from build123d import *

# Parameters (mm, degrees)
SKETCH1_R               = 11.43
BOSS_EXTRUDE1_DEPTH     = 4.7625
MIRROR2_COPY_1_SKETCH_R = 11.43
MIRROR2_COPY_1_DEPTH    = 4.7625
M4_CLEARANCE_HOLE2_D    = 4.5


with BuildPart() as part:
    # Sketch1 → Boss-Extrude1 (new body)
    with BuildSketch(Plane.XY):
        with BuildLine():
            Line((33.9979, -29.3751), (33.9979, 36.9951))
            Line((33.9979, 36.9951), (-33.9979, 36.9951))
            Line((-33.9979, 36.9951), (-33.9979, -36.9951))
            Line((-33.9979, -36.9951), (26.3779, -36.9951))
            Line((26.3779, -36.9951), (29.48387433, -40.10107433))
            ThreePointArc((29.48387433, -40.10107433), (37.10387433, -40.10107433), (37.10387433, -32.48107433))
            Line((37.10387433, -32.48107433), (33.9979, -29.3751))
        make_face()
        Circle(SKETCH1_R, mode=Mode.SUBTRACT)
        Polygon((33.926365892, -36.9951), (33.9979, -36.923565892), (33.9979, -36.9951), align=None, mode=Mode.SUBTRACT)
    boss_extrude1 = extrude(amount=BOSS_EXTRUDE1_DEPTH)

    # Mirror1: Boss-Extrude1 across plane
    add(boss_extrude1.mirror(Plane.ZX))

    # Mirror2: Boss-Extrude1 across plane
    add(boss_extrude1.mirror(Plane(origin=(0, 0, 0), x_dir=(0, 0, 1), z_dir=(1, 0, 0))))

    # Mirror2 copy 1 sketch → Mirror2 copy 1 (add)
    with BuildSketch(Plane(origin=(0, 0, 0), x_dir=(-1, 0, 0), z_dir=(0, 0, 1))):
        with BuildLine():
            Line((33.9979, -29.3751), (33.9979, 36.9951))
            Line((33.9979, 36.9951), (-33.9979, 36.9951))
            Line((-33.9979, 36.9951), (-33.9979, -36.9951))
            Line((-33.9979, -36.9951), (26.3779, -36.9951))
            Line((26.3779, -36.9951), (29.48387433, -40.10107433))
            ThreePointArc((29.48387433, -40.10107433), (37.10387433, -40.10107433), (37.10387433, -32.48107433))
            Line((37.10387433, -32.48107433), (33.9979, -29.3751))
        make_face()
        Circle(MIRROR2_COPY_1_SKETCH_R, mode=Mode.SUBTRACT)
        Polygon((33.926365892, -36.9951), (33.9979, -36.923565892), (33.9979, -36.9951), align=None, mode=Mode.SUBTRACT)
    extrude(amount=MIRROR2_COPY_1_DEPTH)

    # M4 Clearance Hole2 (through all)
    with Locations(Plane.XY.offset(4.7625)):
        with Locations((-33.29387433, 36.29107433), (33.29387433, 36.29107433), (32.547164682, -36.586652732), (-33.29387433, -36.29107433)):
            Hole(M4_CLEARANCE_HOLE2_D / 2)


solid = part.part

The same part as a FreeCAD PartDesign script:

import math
import FreeCAD as App
import Part
import Sketcher

V = App.Vector
Q = App.Units.Quantity

doc = App.newDocument("Part")
body = doc.addObject("PartDesign::Body", "Body")

# Sketch on XY plane
sketch1 = doc.addObject("Sketcher::SketchObject", "Sketch")
body.addObject(sketch1)
sketch1.AttachmentSupport = (doc.XY_Plane, [""])
sketch1.MapMode = "FlatFace"
sketch1.addGeometry(Part.LineSegment(V(34, -29.38, 0), V(34, 37, 0)), False)
sketch1.addGeometry(Part.LineSegment(V(34, 37, 0), V(-34, 37, 0)), False)
sketch1.addGeometry(Part.LineSegment(V(-34, 37, 0), V(-34, -37, 0)), False)
sketch1.addGeometry(Part.LineSegment(V(-34, -37, 0), V(26.38, -37, 0)), False)
sketch1.addGeometry(Part.LineSegment(V(26.38, -37, 0), V(29.48, -40.1, 0)), False)
sketch1.addGeometry(Part.ArcOfCircle(Part.Circle(V(33.29, -36.29, 0), V(0, 0, 1), 5.39), math.radians(-135), math.radians(45)), False)
sketch1.addGeometry(Part.LineSegment(V(37.1, -32.48, 0), V(34, -29.38, 0)), False)
sketch1.addGeometry(Part.LineSegment(V(34, -37, 0), V(33.93, -37, 0)), False)
sketch1.addGeometry(Part.LineSegment(V(33.93, -37, 0), V(34, -36.92, 0)), False)
sketch1.addGeometry(Part.LineSegment(V(34, -36.92, 0), V(34, -37, 0)), False)
sketch1.addGeometry(Part.Circle(V(0, 0, 0), V(0, 0, 1), 11.43), False)
sketch1.addConstraint(Sketcher.Constraint("Coincident", 0, 2, 1, 1))
sketch1.addConstraint(Sketcher.Constraint("Coincident", 1, 2, 2, 1))
sketch1.addConstraint(Sketcher.Constraint("Coincident", 2, 2, 3, 1))
sketch1.addConstraint(Sketcher.Constraint("Coincident", 3, 2, 4, 1))
sketch1.addConstraint(Sketcher.Constraint("Tangent", 4, 2, 5, 1))
sketch1.addConstraint(Sketcher.Constraint("Tangent", 5, 2, 6, 1))
sketch1.addConstraint(Sketcher.Constraint("Coincident", 6, 2, 0, 1))
sketch1.addConstraint(Sketcher.Constraint("Coincident", 7, 2, 8, 1))
sketch1.addConstraint(Sketcher.Constraint("Coincident", 8, 2, 9, 1))
sketch1.addConstraint(Sketcher.Constraint("Coincident", 9, 2, 7, 1))
sketch1.addConstraint(Sketcher.Constraint("Vertical", 0))
sketch1.addConstraint(Sketcher.Constraint("Horizontal", 1))
sketch1.addConstraint(Sketcher.Constraint("Vertical", 2))
sketch1.addConstraint(Sketcher.Constraint("Horizontal", 3))
sketch1.addConstraint(Sketcher.Constraint("Horizontal", 7))
sketch1.addConstraint(Sketcher.Constraint("Vertical", 9))
sketch1.addConstraint(Sketcher.Constraint("Coincident", 10, 3, -1, 1))
sketch1.addConstraint(Sketcher.Constraint("Symmetric", 0, 2, 2, 2, -1, 1))
sketch1.addConstraint(Sketcher.Constraint("Symmetric", 1, 2, 9, 2, -1, 1))
sketch1.addConstraint(Sketcher.Constraint("Parallel", 4, 6))
sketch1.addConstraint(Sketcher.Constraint("Perpendicular", 6, 8))
sketch1.addConstraint(Sketcher.Constraint("Equal", 7, 9))
sketch1.addConstraint(Sketcher.Constraint("Equal", 4, 6))
sketch1.addConstraint(Sketcher.Constraint("Diameter", 10, Q("0.9 in")))
sketch1.addConstraint(Sketcher.Constraint("DistanceX", 3, 2, 0, 2, Q("0.3 in")))
sketch1.addConstraint(Sketcher.Constraint("DistanceX", 1, 2, 1, 1, Q("2.677 in")))
sketch1.addConstraint(Sketcher.Constraint("DistanceY", 0, 1, 0, 2, Q("2.613 in")))
sketch1.addConstraint(Sketcher.Constraint("Distance", 4, 4.392511))
sketch1.addConstraint(Sketcher.Constraint("DistanceX", 7, 2, 7, 1, 0.071534))
pad1 = doc.addObject("PartDesign::Pad", "Pad")
body.addObject(pad1)
pad1.Profile = sketch1
pad1.Length = Q("0.1875 in")
doc.recompute()

mirrored = doc.addObject("PartDesign::Mirrored", "Mirrored")
body.addObject(mirrored)
mirrored.Originals = [pad1]
mirrored.MirrorPlane = (doc.XZ_Plane, [""])
body.Tip = mirrored
doc.recompute()

mirrored2 = doc.addObject("PartDesign::Mirrored", "Mirrored001")
body.addObject(mirrored2)
mirrored2.Originals = [pad1]
mirrored2.MirrorPlane = (doc.YZ_Plane, [""])
body.Tip = mirrored2

# Sketch on XY plane
sketch2 = doc.addObject("Sketcher::SketchObject", "Sketch001")
body.addObject(sketch2)
sketch2.AttachmentSupport = (doc.XY_Plane, [""])
sketch2.MapMode = "FlatFace"
sketch2.addGeometry(Part.LineSegment(V(-34, 29.38, 0), V(-34, -37, 0)), False)
sketch2.addGeometry(Part.LineSegment(V(-34, -37, 0), V(34, -37, 0)), False)
sketch2.addGeometry(Part.LineSegment(V(34, -37, 0), V(34, 37, 0)), False)
sketch2.addGeometry(Part.LineSegment(V(34, 37, 0), V(-26.38, 37, 0)), False)
sketch2.addGeometry(Part.LineSegment(V(-26.38, 37, 0), V(-29.48, 40.1, 0)), False)
sketch2.addGeometry(Part.ArcOfCircle(Part.Circle(V(-33.29, 36.29, 0), V(0, 0, 1), 5.39), math.radians(45), math.radians(225)), False)
sketch2.addGeometry(Part.LineSegment(V(-37.1, 32.48, 0), V(-34, 29.38, 0)), False)
sketch2.addGeometry(Part.LineSegment(V(-34, 37, 0), V(-33.93, 37, 0)), False)
sketch2.addGeometry(Part.LineSegment(V(-33.93, 37, 0), V(-34, 36.92, 0)), False)
sketch2.addGeometry(Part.LineSegment(V(-34, 36.92, 0), V(-34, 37, 0)), False)
sketch2.addGeometry(Part.Circle(V(0, 0, 0), V(0, 0, 1), 11.43), False)
sketch2.addConstraint(Sketcher.Constraint("Coincident", 0, 2, 1, 1))
sketch2.addConstraint(Sketcher.Constraint("Coincident", 1, 2, 2, 1))
sketch2.addConstraint(Sketcher.Constraint("Coincident", 2, 2, 3, 1))
sketch2.addConstraint(Sketcher.Constraint("Coincident", 3, 2, 4, 1))
sketch2.addConstraint(Sketcher.Constraint("Tangent", 4, 2, 5, 1))
sketch2.addConstraint(Sketcher.Constraint("Tangent", 5, 2, 6, 1))
sketch2.addConstraint(Sketcher.Constraint("Coincident", 6, 2, 0, 1))
sketch2.addConstraint(Sketcher.Constraint("Coincident", 7, 2, 8, 1))
sketch2.addConstraint(Sketcher.Constraint("Coincident", 8, 2, 9, 1))
sketch2.addConstraint(Sketcher.Constraint("Coincident", 9, 2, 7, 1))
sketch2.addConstraint(Sketcher.Constraint("Vertical", 0))
sketch2.addConstraint(Sketcher.Constraint("Horizontal", 1))
sketch2.addConstraint(Sketcher.Constraint("Vertical", 2))
sketch2.addConstraint(Sketcher.Constraint("Horizontal", 3))
sketch2.addConstraint(Sketcher.Constraint("Horizontal", 7))
sketch2.addConstraint(Sketcher.Constraint("Vertical", 9))
sketch2.addConstraint(Sketcher.Constraint("Coincident", 10, 3, -1, 1))
sketch2.addConstraint(Sketcher.Constraint("Symmetric", 0, 2, 2, 2, -1, 1))
sketch2.addConstraint(Sketcher.Constraint("Symmetric", 1, 2, 9, 2, -1, 1))
sketch2.addConstraint(Sketcher.Constraint("Parallel", 4, 6))
sketch2.addConstraint(Sketcher.Constraint("Perpendicular", 6, 8))
sketch2.addConstraint(Sketcher.Constraint("Equal", 7, 9))
sketch2.addConstraint(Sketcher.Constraint("Equal", 4, 6))
sketch2.addConstraint(Sketcher.Constraint("Diameter", 10, Q("0.9 in")))
sketch2.addConstraint(Sketcher.Constraint("DistanceX", 0, 2, 3, 2, Q("0.3 in")))
sketch2.addConstraint(Sketcher.Constraint("DistanceX", 1, 1, 1, 2, Q("2.677 in")))
sketch2.addConstraint(Sketcher.Constraint("DistanceY", 0, 2, 0, 1, Q("2.613 in")))
sketch2.addConstraint(Sketcher.Constraint("Distance", 4, 4.392511))
sketch2.addConstraint(Sketcher.Constraint("DistanceX", 7, 1, 7, 2, 0.071534))
pad2 = doc.addObject("PartDesign::Pad", "Pad001")
body.addObject(pad2)
pad2.Profile = sketch2
pad2.Length = Q("0.1875 in")

# Sketch on XY plane
sketch3 = doc.addObject("Sketcher::SketchObject", "Sketch002")
body.addObject(sketch3)
sketch3.AttachmentSupport = (doc.XY_Plane, [""])
sketch3.MapMode = "FlatFace"
sketch3.AttachmentOffset = App.Placement(V(0, 0, 0.1875 * 25.4), App.Rotation())
sketch3.addGeometry(Part.Circle(V(-33.3, 36.3, 0), V(0, 0, 1), 2.2), False)
sketch3.addGeometry(Part.Circle(V(33.3, 36.3, 0), V(0, 0, 1), 2.2), False)
sketch3.addGeometry(Part.Circle(V(32.5, -36.6, 0), V(0, 0, 1), 2.2), False)
sketch3.addGeometry(Part.Circle(V(-33.3, -36.3, 0), V(0, 0, 1), 2.2), False)
sketch3.addConstraint(Sketcher.Constraint("Equal", 0, 1))
sketch3.addConstraint(Sketcher.Constraint("Equal", 1, 2))
sketch3.addConstraint(Sketcher.Constraint("Equal", 2, 3))
sketch3.addConstraint(Sketcher.Constraint("Symmetric", 1, 3, 3, 3, -1, 1))
sketch3.addConstraint(Sketcher.Constraint("Symmetric", 0, 3, 1, 3, -2))
sketch3.addConstraint(Sketcher.Constraint("Diameter", 0, 4.5))
sketch3.addConstraint(Sketcher.Constraint("DistanceX", 0, 3, 1, 3, 66.587749))
sketch3.addConstraint(Sketcher.Constraint("DistanceX", 2, 3, 1, 3, 0.74671))
sketch3.addConstraint(Sketcher.Constraint("DistanceY", 2, 3, 3, 3, 0.295578))
sketch3.addConstraint(Sketcher.Constraint("DistanceY", 3, 3, 0, 3, 72.582149))
doc.recompute()
hole = doc.addObject("PartDesign::Hole", "Hole")
body.addObject(hole)
hole.Profile = sketch3
hole.ThreadType = "None"
hole.Diameter = 4.5
hole.DepthType = "ThroughAll"

doc.recompute()
